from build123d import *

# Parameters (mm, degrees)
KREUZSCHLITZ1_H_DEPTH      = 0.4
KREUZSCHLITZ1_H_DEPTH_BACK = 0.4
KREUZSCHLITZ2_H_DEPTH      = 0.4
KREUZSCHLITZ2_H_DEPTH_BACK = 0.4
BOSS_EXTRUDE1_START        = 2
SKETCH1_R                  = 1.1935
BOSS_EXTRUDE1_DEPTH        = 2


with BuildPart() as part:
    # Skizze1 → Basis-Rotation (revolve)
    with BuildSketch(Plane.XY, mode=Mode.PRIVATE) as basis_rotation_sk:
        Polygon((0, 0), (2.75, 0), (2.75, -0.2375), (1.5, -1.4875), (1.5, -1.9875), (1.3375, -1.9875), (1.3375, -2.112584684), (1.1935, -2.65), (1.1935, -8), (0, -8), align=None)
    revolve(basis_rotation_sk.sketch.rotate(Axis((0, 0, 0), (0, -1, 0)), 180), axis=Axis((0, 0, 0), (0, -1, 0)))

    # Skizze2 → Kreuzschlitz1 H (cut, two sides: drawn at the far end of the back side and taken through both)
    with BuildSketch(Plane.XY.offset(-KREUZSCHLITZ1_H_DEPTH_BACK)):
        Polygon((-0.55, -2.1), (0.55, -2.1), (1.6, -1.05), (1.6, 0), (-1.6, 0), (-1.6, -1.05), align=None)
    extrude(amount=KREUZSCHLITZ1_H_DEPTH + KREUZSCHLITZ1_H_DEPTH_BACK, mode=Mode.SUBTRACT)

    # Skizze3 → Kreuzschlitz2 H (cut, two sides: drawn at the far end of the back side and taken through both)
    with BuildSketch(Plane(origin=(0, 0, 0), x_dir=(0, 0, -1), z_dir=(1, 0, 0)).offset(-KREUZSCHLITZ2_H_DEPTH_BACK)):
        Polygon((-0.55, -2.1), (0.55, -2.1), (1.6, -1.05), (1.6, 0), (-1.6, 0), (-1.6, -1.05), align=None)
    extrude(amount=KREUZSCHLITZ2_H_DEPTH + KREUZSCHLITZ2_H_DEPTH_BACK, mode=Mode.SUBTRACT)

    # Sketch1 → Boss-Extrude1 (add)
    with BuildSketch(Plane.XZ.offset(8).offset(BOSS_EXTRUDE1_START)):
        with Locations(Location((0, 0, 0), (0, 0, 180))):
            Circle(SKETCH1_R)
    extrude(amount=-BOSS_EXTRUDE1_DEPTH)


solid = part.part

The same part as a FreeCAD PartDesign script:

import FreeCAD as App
import Part
import Sketcher
from FreeCAD import Vector
Q = App.Units.Quantity


def add_polygon(sketch, points):
    """Adds a closed chain of lines whose ends are joined by coincident constraints."""
    first, n = sketch.GeometryCount, len(points)
    for a, b in zip(points, points[1:] + points[:1]):
        sketch.addGeometry(Part.LineSegment(App.Vector(*a, 0), App.Vector(*b, 0)), False)
    for i in range(n):
        sketch.addConstraint(Sketcher.Constraint("Coincident", first + i, 2, first + (i + 1) % n, 1))

doc = App.newDocument("Part")
body = doc.addObject("PartDesign::Body", "Body")

sketch1 = body.newObject("Sketcher::SketchObject", "Sketch")
sketch1.AttachmentSupport = (doc.getObject("XY_Plane"), [""])
sketch1.MapMode = "FlatFace"
add_polygon(sketch1, [(2.75, 0), (0, 0), (0, -8), (1.1935, -8), (1.1935, -2.65), (1.3375, -2.112585), (1.3375, -1.9875), (1.5, -1.9875), (1.5, -1.4875), (2.75, -0.2375)])
sketch1.addConstraint([
    Sketcher.Constraint("Horizontal", 0),
    Sketcher.Constraint("Vertical", 1),
    Sketcher.Constraint("Horizontal", 2),
    Sketcher.Constraint("Vertical", 3),
    Sketcher.Constraint("Vertical", 5),
    Sketcher.Constraint("Horizontal", 6),
    Sketcher.Constraint("Vertical", 7),
    Sketcher.Constraint("Vertical", 9),
    Sketcher.Constraint("Coincident", 0, 2, -1, 1),
    Sketcher.Constraint("DistanceY", 1, 2, 1, 1, Q("8 mm")),
    Sketcher.Constraint("Angle", 4, Q("75 deg")),
    Sketcher.Constraint("Angle", 8, Q("45 deg")),
    Sketcher.Constraint("DistanceY", 7, 1, 7, 2, Q("0.5 mm")),
    Sketcher.Constraint("DistanceX", 0, 2, 0, 1, Q("2.75 mm")),
    Sketcher.Constraint("DistanceY", 3, 1, 3, 2, Q("5.35 mm")),
    Sketcher.Constraint("DistanceX", -1, 1, 6, 2, Q("1.5 mm")),
    Sketcher.Constraint("DistanceX", 2, 1, 2, 2, Q("1.1935 mm")),
    Sketcher.Constraint("DistanceX", 6, 1, 6, 2, Q("0.1625 mm")),
    Sketcher.Constraint("DistanceY", 9, 1, 9, 2, Q("0.2375 mm")),
])
revolution = body.newObject("PartDesign::Revolution", "Revolution")
revolution.Profile = sketch1
revolution.ReferenceAxis = (sketch1, ["V_Axis"])
revolution.Angle = 360

sketch2 = body.newObject("Sketcher::SketchObject", "Sketch001")
sketch2.AttachmentSupport = (doc.getObject("XY_Plane"), [""])
sketch2.MapMode = "FlatFace"
add_polygon(sketch2, [(-0.55, -2.1), (0.55, -2.1), (1.6, -1.05), (1.6, 0), (-1.6, 0), (-1.6, -1.05)])
sketch2.addConstraint([
    Sketcher.Constraint("Horizontal", 0),
    Sketcher.Constraint("Vertical", 2),
    Sketcher.Constraint("Horizontal", 3),
    Sketcher.Constraint("Vertical", 4),
    Sketcher.Constraint("Symmetric", 2, 2, 3, 2, -1, 1),
    Sketcher.Constraint("Perpendicular", 1, 5),
    Sketcher.Constraint("Horizontal", 1, 2, 4, 2),
    Sketcher.Constraint("Equal", 1, 5),
    Sketcher.Constraint("DistanceX", 0, 1, 0, 2, Q("1.1 mm")),
    Sketcher.Constraint("DistanceX", 3, 2, 3, 1, Q("3.2 mm")),
    Sketcher.Constraint("DistanceY", 2, 1, 2, 2, Q("1.05 mm")),
])
pocket1 = body.newObject("PartDesign::Pocket", "Pocket")
pocket1.Profile = sketch2
pocket1.Type = "TwoLengths"
pocket1.Length = 0.4
pocket1.Length2 = 0.4
pocket1.Reversed = True

sketch3 = body.newObject("Sketcher::SketchObject", "Sketch002")
sketch3.AttachmentSupport = (doc.getObject("YZ_Plane"), [""])
sketch3.MapMode = "FlatFace"
add_polygon(sketch3, [(-2.1, 0.55), (-2.1, -0.55), (-1.05, -1.6), (0, -1.6), (0, 1.6), (-1.05, 1.6)])
sketch3.addConstraint([
    Sketcher.Constraint("Vertical", 0),
    Sketcher.Constraint("Horizontal", 2),
    Sketcher.Constraint("Vertical", 3),
    Sketcher.Constraint("Horizontal", 4),
    Sketcher.Constraint("Symmetric", 2, 2, 3, 2, -1, 1),
    Sketcher.Constraint("Perpendicular", 1, 5),
    Sketcher.Constraint("Vertical", 1, 2, 4, 2),
    Sketcher.Constraint("Equal", 1, 5),
    Sketcher.Constraint("DistanceY", 0, 2, 0, 1, Q("1.1 mm")),
    Sketcher.Constraint("DistanceY", 3, 1, 3, 2, Q("3.2 mm")),
    Sketcher.Constraint("DistanceX", 2, 1, 2, 2, Q("1.05 mm")),
])
pocket2 = body.newObject("PartDesign::Pocket", "Pocket001")
pocket2.Profile = sketch3
pocket2.Type = "TwoLengths"
pocket2.Length = 0.4
pocket2.Length2 = 0.4
pocket2.Reversed = True

sketch4 = body.newObject("Sketcher::SketchObject", "Sketch003")
sketch4.AttachmentSupport = (doc.getObject("XZ_Plane"), [""])
sketch4.MapMode = "FlatFace"
sketch4.AttachmentOffset = App.Placement(Vector(0, 0, 10), App.Rotation())
sketch4.addGeometry(Part.Circle(Vector(0, 0, 0), Vector(0, 0, 1), 1.1935), False)
sketch4.addConstraint([
    Sketcher.Constraint("Coincident", 0, 3, -1, 1),
    Sketcher.Constraint("Diameter", 0, Q("2.387 mm")),
])
pad1 = body.newObject("PartDesign::Pad", "Pad")
pad1.Profile = sketch4
pad1.Length = 2
pad1.Reversed = True

doc.recompute()
